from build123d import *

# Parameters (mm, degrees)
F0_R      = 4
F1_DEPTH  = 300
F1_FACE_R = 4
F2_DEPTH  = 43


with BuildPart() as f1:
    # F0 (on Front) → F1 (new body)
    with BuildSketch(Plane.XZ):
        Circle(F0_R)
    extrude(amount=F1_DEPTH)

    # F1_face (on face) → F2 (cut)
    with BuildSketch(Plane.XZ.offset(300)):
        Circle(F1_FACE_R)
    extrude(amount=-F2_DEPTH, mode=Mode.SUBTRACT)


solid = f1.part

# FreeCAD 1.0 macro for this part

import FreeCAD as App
import Part
import Sketcher
from FreeCAD import Vector

doc = App.newDocument("Part")
body = doc.addObject("PartDesign::Body", "Body")

# Sketch on XZ plane
sketch1 = doc.addObject("Sketcher::SketchObject", "Sketch")
body.addObject(sketch1)
sketch1.AttachmentSupport = (doc.XZ_Plane, [""])
sketch1.MapMode = "FlatFace"
sketch1.addGeometry(Part.Circle(Vector(0, 0, 0), Vector(0, 0, 1), 4), False)
sketch1.addConstraint(Sketcher.Constraint("Coincident", 0, 3, -1, 1))
sketch1.addConstraint(Sketcher.Constraint("Diameter", 0, 8.0))
pad1 = doc.addObject("PartDesign::Pad", "Pad")
body.addObject(pad1)
pad1.Profile = sketch1
pad1.Length = 300

# Sketch on XZ plane
sketch2 = doc.addObject("Sketcher::SketchObject", "Sketch001")
body.addObject(sketch2)
sketch2.AttachmentSupport = (doc.XZ_Plane, [""])
sketch2.MapMode = "FlatFace"
sketch2.AttachmentOffset = App.Placement(Vector(0, 0, 300), App.Rotation())
sketch2.addGeometry(Part.Circle(Vector(0, 0, 0), Vector(0, 0, 1), 4), False)
sketch2.addConstraint(Sketcher.Constraint("Coincident", 0, 3, -1, 1))
sketch2.addConstraint(Sketcher.Constraint("Diameter", 0, 8.0))
pocket1 = doc.addObject("PartDesign::Pocket", "Pocket")
body.addObject(pocket1)
pocket1.Profile = sketch2
pocket1.Length = 43

doc.recompute()
